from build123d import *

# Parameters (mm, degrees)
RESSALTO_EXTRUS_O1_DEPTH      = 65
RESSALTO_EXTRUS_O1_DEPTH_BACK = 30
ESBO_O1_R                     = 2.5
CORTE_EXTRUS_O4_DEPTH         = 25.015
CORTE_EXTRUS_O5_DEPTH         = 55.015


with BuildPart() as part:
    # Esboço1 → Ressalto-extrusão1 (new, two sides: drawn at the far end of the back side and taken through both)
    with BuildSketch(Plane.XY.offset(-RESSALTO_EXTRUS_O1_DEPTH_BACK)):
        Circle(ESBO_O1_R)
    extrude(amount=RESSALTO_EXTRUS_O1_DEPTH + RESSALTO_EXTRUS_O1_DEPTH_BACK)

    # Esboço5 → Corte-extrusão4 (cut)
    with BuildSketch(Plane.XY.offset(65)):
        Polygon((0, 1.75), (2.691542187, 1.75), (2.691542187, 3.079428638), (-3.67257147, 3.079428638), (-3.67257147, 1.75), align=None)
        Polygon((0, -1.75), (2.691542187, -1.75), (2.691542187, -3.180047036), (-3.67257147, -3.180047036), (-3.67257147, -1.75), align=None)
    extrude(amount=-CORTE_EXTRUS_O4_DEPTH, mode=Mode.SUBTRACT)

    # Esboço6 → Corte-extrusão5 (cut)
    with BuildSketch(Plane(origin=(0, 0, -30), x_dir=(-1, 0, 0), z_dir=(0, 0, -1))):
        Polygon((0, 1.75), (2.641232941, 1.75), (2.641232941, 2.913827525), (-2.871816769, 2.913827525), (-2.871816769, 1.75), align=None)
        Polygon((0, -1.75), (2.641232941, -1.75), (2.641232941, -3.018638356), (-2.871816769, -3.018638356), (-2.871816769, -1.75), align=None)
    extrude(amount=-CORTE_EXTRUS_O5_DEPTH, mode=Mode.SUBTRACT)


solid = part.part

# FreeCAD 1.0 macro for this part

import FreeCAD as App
import Part
import Sketcher

doc = App.newDocument("Part")
body = doc.addObject("PartDesign::Body", "Body")

# Sketch on XY plane
sketch1 = body.newObject("Sketcher::SketchObject", "Sketch")
sketch1.AttachmentSupport = (doc.getObject("XY_Plane"), [""])
sketch1.MapMode = "FlatFace"
sketch1.addGeometry(Part.Circle(App.Vector(0, 0, 0), App.Vector(0, 0, 1), 2.5), False)
sketch1.addConstraint([
    Sketcher.Constraint("Coincident", 0, 3, -1, 1),
    Sketcher.Constraint("Diameter", 0, 5.0),
])
pad1 = body.newObject("PartDesign::Pad", "Pad")
pad1.Profile = sketch1
pad1.Type = "TwoLengths"
pad1.Length = 65
pad1.Length2 = 30

# Sketch on XY plane
sketch2 = body.newObject("Sketcher::SketchObject", "Sketch001")
sketch2.AttachmentSupport = (doc.getObject("XY_Plane"), [""])
sketch2.MapMode = "FlatFace"
sketch2.AttachmentOffset = App.Placement(App.Vector(0, 0, 65), App.Rotation())
sketch2.addGeometry([
    Part.LineSegment(App.Vector(2.691542, 1.75, 0), App.Vector(2.691542, 3.079429, 0)),  # 0
    Part.LineSegment(App.Vector(2.691542, 3.079429, 0), App.Vector(-3.672571, 3.079429, 0)),  # 1
    Part.LineSegment(App.Vector(-3.672571, 3.079429, 0), App.Vector(-3.672571, 1.75, 0)),  # 2
    Part.LineSegment(App.Vector(-3.672571, 1.75, 0), App.Vector(2.691542, 1.75, 0)),  # 3
    Part.LineSegment(App.Vector(2.691542, -1.75, 0), App.Vector(-3.672571, -1.75, 0)),  # 4
    Part.LineSegment(App.Vector(-3.672571, -1.75, 0), App.Vector(-3.672571, -3.180047, 0)),  # 5
    Part.LineSegment(App.Vector(-3.672571, -3.180047, 0), App.Vector(2.691542, -3.180047, 0)),  # 6
    Part.LineSegment(App.Vector(2.691542, -3.180047, 0), App.Vector(2.691542, -1.75, 0)),  # 7
], False)
sketch2.addConstraint([
    Sketcher.Constraint("Coincident", 0, 2, 1, 1),
    Sketcher.Constraint("Coincident", 1, 2, 2, 1),
    Sketcher.Constraint("Coincident", 2, 2, 3, 1),
    Sketcher.Constraint("Coincident", 3, 2, 0, 1),
    Sketcher.Constraint("Coincident", 4, 2, 5, 1),
    Sketcher.Constraint("Coincident", 5, 2, 6, 1),
    Sketcher.Constraint("Coincident", 6, 2, 7, 1),
    Sketcher.Constraint("Coincident", 7, 2, 4, 1),
    Sketcher.Constraint("Vertical", 0),
    Sketcher.Constraint("Horizontal", 1),
    Sketcher.Constraint("Vertical", 2),
    Sketcher.Constraint("Horizontal", 3),
    Sketcher.Constraint("Horizontal", 4),
    Sketcher.Constraint("Vertical", 5),
    Sketcher.Constraint("Horizontal", 6),
    Sketcher.Constraint("Vertical", 7),
    Sketcher.Constraint("Symmetric", 2, 2, 4, 2, -1),
    Sketcher.Constraint("Vertical", 3, 2, 6, 2),
    Sketcher.Constraint("DistanceY", 4, 2, 2, 2, 3.5),
    Sketcher.Constraint("DistanceY", 0, 1, 0, 2, 1.329429),
    Sketcher.Constraint("DistanceX", 1, 2, 1, 1, 6.364114),
    Sketcher.Constraint("DistanceY", 5, 2, 5, 1, 1.430047),
    Sketcher.Constraint("DistanceX", 1, 2, -1, 1, 3.672571),
])
pocket1 = body.newObject("PartDesign::Pocket", "Pocket")
pocket1.Profile = sketch2
pocket1.Length = 25.015

# Sketch on XY plane
sketch3 = body.newObject("Sketcher::SketchObject", "Sketch002")
sketch3.AttachmentSupport = (doc.getObject("XY_Plane"), [""])
sketch3.MapMode = "FlatFace"
sketch3.AttachmentOffset = App.Placement(App.Vector(0, 0, -30), App.Rotation())
sketch3.addGeometry([
    Part.LineSegment(App.Vector(-2.641233, 1.75, 0), App.Vector(-2.641233, 2.913828, 0)),  # 0
    Part.LineSegment(App.Vector(-2.641233, 2.913828, 0), App.Vector(2.871817, 2.913828, 0)),  # 1
    Part.LineSegment(App.Vector(2.871817, 2.913828, 0), App.Vector(2.871817, 1.75, 0)),  # 2
    Part.LineSegment(App.Vector(2.871817, 1.75, 0), App.Vector(-2.641233, 1.75, 0)),  # 3
    Part.LineSegment(App.Vector(-2.641233, -1.75, 0), App.Vector(2.871817, -1.75, 0)),  # 4
    Part.LineSegment(App.Vector(2.871817, -1.75, 0), App.Vector(2.871817, -3.018638, 0)),  # 5
    Part.LineSegment(App.Vector(2.871817, -3.018638, 0), App.Vector(-2.641233, -3.018638, 0)),  # 6
    Part.LineSegment(App.Vector(-2.641233, -3.018638, 0), App.Vector(-2.641233, -1.75, 0)),  # 7
], False)
sketch3.addConstraint([
    Sketcher.Constraint("Coincident", 0, 2, 1, 1),
    Sketcher.Constraint("Coincident", 1, 2, 2, 1),
    Sketcher.Constraint("Coincident", 2, 2, 3, 1),
    Sketcher.Constraint("Coincident", 3, 2, 0, 1),
    Sketcher.Constraint("Coincident", 4, 2, 5, 1),
    Sketcher.Constraint("Coincident", 5, 2, 6, 1),
    Sketcher.Constraint("Coincident", 6, 2, 7, 1),
    Sketcher.Constraint("Coincident", 7, 2, 4, 1),
    Sketcher.Constraint("Vertical", 0),
    Sketcher.Constraint("Horizontal", 1),
    Sketcher.Constraint("Vertical", 2),
    Sketcher.Constraint("Horizontal", 3),
    Sketcher.Constraint("Horizontal", 4),
    Sketcher.Constraint("Vertical", 5),
    Sketcher.Constraint("Horizontal", 6),
    Sketcher.Constraint("Vertical", 7),
    Sketcher.Constraint("Symmetric", 2, 2, 4, 2, -1),
    Sketcher.Constraint("Vertical", 3, 2, 6, 2),
    Sketcher.Constraint("DistanceY", 4, 2, 2, 2, 3.5),
    Sketcher.Constraint("DistanceX", 1, 1, 1, 2, 5.51305),
    Sketcher.Constraint("DistanceY", 5, 2, 5, 1, 1.268638),
    Sketcher.Constraint("DistanceY", 0, 1, 0, 2, 1.163828),
    Sketcher.Constraint("DistanceX", 0, 2, -1, 1, 2.641233),
])
pocket2 = body.newObject("PartDesign::Pocket", "Pocket001")
pocket2.Profile = sketch3
pocket2.Length = 55.015
pocket2.Reversed = True

doc.recompute()
